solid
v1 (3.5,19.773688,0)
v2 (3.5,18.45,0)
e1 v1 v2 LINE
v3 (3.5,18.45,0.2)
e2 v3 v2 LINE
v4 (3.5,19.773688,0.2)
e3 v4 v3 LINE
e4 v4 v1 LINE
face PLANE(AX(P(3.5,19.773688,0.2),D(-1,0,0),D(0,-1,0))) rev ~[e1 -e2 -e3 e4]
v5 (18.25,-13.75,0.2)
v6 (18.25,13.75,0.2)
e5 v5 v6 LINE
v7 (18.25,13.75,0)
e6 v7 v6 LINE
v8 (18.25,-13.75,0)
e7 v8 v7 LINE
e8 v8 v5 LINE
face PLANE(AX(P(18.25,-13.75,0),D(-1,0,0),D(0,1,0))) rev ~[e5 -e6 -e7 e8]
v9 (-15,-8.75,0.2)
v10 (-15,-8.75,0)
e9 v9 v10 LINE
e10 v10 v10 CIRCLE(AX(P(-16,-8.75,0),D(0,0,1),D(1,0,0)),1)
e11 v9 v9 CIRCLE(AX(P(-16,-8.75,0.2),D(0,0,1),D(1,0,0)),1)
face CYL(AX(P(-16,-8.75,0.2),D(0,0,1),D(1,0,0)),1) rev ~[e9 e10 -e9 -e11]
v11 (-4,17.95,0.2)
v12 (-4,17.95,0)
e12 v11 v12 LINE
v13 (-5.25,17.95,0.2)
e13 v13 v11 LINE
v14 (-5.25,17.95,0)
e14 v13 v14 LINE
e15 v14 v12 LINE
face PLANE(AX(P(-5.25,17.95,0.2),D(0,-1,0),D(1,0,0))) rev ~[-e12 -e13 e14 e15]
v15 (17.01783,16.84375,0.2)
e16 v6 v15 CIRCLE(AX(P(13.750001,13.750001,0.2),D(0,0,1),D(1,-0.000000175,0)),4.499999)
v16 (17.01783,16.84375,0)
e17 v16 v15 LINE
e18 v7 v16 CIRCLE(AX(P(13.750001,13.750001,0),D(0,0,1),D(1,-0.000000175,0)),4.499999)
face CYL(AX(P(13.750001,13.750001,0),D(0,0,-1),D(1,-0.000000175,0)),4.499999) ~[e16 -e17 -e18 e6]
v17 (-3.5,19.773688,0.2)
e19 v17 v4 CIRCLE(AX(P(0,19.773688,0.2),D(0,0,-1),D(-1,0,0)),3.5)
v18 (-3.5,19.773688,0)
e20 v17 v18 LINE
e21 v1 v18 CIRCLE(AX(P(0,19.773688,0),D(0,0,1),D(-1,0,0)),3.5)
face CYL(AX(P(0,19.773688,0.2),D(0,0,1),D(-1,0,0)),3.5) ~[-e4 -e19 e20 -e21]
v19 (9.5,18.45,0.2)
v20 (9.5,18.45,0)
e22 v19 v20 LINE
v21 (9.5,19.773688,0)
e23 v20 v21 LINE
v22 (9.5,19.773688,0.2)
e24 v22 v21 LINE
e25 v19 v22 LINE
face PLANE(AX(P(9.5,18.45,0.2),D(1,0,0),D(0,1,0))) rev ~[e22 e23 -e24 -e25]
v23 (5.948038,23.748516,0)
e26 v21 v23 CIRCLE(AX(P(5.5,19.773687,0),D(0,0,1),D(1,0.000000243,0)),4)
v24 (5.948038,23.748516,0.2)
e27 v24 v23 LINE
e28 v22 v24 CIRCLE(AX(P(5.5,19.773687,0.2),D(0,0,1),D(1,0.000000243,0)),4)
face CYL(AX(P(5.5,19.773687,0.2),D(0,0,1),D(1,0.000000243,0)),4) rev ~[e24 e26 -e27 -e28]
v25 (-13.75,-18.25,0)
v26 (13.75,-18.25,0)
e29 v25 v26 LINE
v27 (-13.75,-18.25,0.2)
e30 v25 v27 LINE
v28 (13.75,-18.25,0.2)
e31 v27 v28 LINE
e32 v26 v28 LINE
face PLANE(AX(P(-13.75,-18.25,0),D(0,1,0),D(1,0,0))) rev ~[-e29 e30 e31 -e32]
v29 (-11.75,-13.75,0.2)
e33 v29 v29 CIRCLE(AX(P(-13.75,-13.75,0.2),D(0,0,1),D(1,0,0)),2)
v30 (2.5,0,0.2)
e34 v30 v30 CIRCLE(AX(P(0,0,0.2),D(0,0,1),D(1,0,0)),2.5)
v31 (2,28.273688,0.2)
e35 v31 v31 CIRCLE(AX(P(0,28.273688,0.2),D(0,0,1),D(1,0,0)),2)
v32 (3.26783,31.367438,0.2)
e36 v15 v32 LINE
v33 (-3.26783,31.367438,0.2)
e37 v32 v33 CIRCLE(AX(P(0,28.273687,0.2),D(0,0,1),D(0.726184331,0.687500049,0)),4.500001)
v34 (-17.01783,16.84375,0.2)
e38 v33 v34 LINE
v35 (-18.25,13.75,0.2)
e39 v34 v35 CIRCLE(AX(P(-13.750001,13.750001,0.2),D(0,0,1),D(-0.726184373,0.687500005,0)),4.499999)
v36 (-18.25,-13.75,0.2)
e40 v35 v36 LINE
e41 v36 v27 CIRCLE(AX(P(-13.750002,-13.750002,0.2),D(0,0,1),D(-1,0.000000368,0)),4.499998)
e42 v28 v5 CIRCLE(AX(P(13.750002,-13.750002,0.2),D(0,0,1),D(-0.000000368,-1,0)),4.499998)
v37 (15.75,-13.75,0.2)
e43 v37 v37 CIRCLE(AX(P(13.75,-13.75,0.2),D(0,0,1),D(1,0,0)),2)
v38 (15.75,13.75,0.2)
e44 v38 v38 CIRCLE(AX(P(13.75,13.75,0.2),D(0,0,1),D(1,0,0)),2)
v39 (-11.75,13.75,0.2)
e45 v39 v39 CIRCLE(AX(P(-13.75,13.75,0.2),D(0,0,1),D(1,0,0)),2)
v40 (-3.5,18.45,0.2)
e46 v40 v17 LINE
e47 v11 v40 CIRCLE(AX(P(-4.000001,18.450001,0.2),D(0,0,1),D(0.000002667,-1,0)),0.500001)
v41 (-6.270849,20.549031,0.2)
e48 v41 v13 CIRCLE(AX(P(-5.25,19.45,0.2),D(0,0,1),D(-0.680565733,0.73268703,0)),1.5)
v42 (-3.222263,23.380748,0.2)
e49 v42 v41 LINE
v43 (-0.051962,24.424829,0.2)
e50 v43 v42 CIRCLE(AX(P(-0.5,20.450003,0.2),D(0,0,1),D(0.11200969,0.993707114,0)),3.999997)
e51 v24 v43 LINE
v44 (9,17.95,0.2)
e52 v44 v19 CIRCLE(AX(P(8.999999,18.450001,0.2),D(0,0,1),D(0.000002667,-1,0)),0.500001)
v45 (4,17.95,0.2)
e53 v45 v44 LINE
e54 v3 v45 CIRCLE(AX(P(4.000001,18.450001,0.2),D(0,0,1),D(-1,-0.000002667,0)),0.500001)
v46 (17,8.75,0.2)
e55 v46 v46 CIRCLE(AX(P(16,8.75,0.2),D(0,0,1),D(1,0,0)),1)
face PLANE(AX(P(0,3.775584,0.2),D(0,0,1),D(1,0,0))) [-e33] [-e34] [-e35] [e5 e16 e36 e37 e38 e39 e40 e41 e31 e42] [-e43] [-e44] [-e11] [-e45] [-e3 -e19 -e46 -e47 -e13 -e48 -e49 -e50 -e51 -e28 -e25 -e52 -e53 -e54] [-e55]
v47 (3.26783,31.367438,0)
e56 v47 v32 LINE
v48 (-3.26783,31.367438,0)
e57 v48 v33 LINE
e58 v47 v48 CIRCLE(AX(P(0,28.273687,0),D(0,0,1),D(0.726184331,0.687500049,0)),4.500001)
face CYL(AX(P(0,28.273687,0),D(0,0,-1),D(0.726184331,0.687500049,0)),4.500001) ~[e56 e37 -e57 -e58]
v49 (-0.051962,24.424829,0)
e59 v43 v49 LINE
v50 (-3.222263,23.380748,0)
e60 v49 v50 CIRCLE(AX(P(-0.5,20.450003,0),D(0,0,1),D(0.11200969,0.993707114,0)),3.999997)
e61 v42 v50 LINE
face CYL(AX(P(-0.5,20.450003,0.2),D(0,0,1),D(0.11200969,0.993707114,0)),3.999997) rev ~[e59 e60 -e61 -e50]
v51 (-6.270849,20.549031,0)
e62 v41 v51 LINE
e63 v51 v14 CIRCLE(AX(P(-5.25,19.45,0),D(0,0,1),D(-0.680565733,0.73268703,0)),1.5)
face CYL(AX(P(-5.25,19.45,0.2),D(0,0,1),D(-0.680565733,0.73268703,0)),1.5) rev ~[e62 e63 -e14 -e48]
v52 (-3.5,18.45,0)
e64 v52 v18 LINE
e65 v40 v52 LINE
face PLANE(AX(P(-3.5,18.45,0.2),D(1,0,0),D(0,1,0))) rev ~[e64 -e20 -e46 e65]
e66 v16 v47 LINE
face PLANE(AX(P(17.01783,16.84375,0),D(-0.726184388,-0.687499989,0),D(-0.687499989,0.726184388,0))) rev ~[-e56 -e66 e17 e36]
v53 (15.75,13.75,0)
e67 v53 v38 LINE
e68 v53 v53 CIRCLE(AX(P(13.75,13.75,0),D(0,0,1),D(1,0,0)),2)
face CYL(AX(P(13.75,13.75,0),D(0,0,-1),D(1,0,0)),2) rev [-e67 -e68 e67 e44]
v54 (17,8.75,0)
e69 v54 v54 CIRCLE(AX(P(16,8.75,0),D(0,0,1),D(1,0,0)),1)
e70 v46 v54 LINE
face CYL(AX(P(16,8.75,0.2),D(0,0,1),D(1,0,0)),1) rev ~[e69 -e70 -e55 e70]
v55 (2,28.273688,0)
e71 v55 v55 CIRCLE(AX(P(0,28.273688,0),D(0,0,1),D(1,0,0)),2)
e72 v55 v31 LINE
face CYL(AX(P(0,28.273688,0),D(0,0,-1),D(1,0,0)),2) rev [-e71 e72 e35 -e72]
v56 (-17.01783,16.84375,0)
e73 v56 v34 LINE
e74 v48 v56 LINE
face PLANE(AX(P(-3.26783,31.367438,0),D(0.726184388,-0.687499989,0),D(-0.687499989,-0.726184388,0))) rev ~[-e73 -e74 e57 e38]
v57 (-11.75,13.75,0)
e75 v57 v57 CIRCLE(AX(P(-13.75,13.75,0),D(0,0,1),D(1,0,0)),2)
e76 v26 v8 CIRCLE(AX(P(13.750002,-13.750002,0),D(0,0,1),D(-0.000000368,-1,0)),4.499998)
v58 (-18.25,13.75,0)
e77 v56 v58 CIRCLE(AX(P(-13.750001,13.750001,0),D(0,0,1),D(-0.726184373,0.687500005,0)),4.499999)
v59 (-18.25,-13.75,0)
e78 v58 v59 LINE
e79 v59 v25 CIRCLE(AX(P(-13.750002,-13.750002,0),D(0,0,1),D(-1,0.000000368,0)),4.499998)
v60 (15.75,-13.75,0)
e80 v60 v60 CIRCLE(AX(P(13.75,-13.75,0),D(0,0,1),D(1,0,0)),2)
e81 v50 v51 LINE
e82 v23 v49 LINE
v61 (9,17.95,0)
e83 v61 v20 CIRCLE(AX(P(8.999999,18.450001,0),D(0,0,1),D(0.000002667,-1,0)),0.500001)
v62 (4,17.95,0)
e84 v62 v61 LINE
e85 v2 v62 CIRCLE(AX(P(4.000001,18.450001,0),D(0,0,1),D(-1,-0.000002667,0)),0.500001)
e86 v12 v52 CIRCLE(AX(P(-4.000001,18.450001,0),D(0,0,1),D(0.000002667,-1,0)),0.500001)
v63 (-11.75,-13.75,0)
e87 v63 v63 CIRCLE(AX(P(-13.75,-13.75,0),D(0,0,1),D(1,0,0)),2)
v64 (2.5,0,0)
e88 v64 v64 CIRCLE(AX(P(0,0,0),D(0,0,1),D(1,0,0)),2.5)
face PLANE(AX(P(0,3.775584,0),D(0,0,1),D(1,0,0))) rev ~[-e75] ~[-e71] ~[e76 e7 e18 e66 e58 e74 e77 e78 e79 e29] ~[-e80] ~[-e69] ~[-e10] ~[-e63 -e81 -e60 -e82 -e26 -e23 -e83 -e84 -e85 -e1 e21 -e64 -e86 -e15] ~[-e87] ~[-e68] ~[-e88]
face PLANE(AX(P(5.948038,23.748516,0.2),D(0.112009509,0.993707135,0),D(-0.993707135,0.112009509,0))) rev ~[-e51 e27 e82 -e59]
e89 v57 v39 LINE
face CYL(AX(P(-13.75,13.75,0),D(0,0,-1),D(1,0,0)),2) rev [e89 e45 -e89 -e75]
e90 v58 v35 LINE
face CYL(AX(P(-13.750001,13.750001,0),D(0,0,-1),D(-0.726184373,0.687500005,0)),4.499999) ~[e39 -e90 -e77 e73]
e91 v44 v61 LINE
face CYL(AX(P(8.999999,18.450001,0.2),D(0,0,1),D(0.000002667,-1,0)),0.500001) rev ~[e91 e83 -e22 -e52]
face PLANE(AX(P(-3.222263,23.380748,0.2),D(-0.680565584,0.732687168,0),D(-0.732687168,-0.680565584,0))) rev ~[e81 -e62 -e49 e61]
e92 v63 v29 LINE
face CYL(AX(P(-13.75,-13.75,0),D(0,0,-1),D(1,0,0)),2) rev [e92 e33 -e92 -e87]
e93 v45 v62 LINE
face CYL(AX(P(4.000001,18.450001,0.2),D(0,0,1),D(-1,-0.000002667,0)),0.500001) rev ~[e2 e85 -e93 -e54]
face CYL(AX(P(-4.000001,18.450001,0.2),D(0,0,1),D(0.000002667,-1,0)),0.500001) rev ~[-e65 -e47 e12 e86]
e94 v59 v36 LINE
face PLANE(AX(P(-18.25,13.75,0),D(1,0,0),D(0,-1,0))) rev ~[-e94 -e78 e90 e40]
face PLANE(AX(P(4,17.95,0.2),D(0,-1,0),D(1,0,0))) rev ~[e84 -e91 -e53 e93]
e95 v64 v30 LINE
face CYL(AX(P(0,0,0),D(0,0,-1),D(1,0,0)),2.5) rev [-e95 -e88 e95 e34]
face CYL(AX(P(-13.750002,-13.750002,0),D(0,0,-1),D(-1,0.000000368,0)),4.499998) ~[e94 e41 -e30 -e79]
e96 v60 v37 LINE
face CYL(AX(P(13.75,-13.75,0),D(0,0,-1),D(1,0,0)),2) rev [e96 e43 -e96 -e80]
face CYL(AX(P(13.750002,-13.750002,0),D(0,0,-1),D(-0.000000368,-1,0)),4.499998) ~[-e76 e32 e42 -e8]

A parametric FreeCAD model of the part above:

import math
import FreeCAD as App
import Part
import Sketcher

doc = App.newDocument("Part")
params = doc.addObject("Spreadsheet::Sheet", "Params")
for row, (alias, value) in enumerate([
    ("sketch1_diameter", "4 mm"),
    ("sketch1_diameter2", "5 mm"),
    ("sketch1_radius", "4.500001 mm"),
    ("sketch1_length", "20 mm"),
    ("sketch1_width", "27.5 mm"),
    ("pad1_length", "0.2 mm"),
    ("sketch2_diameter", "2 mm"),
    ("sketch2_radius", "4 mm"),
    ("sketch2_radius2", "3.5 mm"),
    ("sketch2_radius3", "0.500001 mm"),
    ("sketch2_radius4", "1.5 mm"),
], start=1):
    params.set(f"A{row}", alias)
    params.set(f"B{row}", "=" + value)
    params.setAlias(f"B{row}", alias)

body = doc.addObject("PartDesign::Body", "Body")

sketch1 = body.newObject("Sketcher::SketchObject", "Sketch")
sketch1.AttachmentSupport = (doc.getObject("XY_Plane"), [""])
sketch1.MapMode = "FlatFace"
sketch1.addGeometry([
    Part.ArcOfCircle(Part.Circle(App.Vector(0, 28.3, 0), App.Vector(0, 0, 1), 4.5), math.radians(43), math.radians(137)),
    Part.LineSegment(App.Vector(-3.3, 31.4, 0), App.Vector(-17, 16.8, 0)),
    Part.ArcOfCircle(Part.Circle(App.Vector(-13.8, 13.8, 0), App.Vector(0, 0, 1), 4.5), math.radians(137), math.radians(180)),
    Part.LineSegment(App.Vector(-18.2, 13.8, 0), App.Vector(-18.2, -13.8, 0)),
    Part.ArcOfCircle(Part.Circle(App.Vector(-13.8, -13.8, 0), App.Vector(0, 0, 1), 4.5), math.radians(180), math.radians(270)),
    Part.LineSegment(App.Vector(-13.8, -18.2, 0), App.Vector(13.8, -18.2, 0)),
    Part.ArcOfCircle(Part.Circle(App.Vector(13.8, -13.8, 0), App.Vector(0, 0, 1), 4.5), math.radians(-90), math.radians(0)),
    Part.LineSegment(App.Vector(18.2, -13.8, 0), App.Vector(18.2, 13.8, 0)),
    Part.ArcOfCircle(Part.Circle(App.Vector(13.8, 13.8, 0), App.Vector(0, 0, 1), 4.5), math.radians(0), math.radians(43)),
    Part.LineSegment(App.Vector(17, 16.8, 0), App.Vector(3.3, 31.4, 0)),
    Part.Circle(App.Vector(-13.8, -13.8, 0), App.Vector(0, 0, 1), 2),
    Part.Circle(App.Vector(13.8, -13.8, 0), App.Vector(0, 0, 1), 2),
    Part.Circle(App.Vector(0, 0, 0), App.Vector(0, 0, 1), 2.5),
    Part.Circle(App.Vector(-13.8, 13.8, 0), App.Vector(0, 0, 1), 2),
    Part.Circle(App.Vector(13.8, 13.8, 0), App.Vector(0, 0, 1), 2),
    Part.Circle(App.Vector(0, 28.3, 0), App.Vector(0, 0, 1), 2),
], False)
sketch1.addConstraint([
    Sketcher.Constraint("Tangent", 0, 2, 1, 1),
    Sketcher.Constraint("Tangent", 1, 2, 2, 1),
    Sketcher.Constraint("Tangent", 2, 2, 3, 1),
    Sketcher.Constraint("Tangent", 3, 2, 4, 1),
    Sketcher.Constraint("Tangent", 4, 2, 5, 1),
    Sketcher.Constraint("Tangent", 5, 2, 6, 1),
    Sketcher.Constraint("Tangent", 6, 2, 7, 1),
    Sketcher.Constraint("Tangent", 7, 2, 8, 1),
    Sketcher.Constraint("Tangent", 8, 2, 9, 1),
    Sketcher.Constraint("Tangent", 9, 2, 0, 1),
    Sketcher.Constraint("Vertical", 3),
    Sketcher.Constraint("Horizontal", 5),
    Sketcher.Constraint("Vertical", 7),
    Sketcher.Constraint("Coincident", 12, 3, -1, 1),
    Sketcher.Constraint("Coincident", 10, 3, 4, 3),
    Sketcher.Constraint("Coincident", 11, 3, 6, 3),
    Sketcher.Constraint("Coincident", 13, 3, 2, 3),
    Sketcher.Constraint("Coincident", 14, 3, 8, 3),
    Sketcher.Constraint("Coincident", 15, 3, 0, 3),
    Sketcher.Constraint("Equal", 0, 2),
    Sketcher.Constraint("Equal", 2, 4),
    Sketcher.Constraint("Equal", 4, 6),
    Sketcher.Constraint("Equal", 6, 8),
    Sketcher.Constraint("Equal", 10, 11),
    Sketcher.Constraint("Equal", 11, 13),
    Sketcher.Constraint("Equal", 13, 14),
    Sketcher.Constraint("Equal", 14, 15),
    Sketcher.Constraint("Symmetric", 2, 3, 6, 3, -1, 1),
    Sketcher.Constraint("Symmetric", 1, 2, 8, 2, -2),
    Sketcher.Constraint("Equal", 5, 3),
    Sketcher.Constraint("Diameter", 10, 4.0),
    Sketcher.Constraint("Diameter", 12, 5.0),
    Sketcher.Constraint("Radius", 0, 4.500001),
    Sketcher.Constraint("Distance", 1, 20.0),
    Sketcher.Constraint("DistanceX", 5, 1, 5, 2, 27.5),
])
sketch1.setExpression("Constraints[30]", "Params.sketch1_diameter")
sketch1.setExpression("Constraints[31]", "Params.sketch1_diameter2")
sketch1.setExpression("Constraints[32]", "Params.sketch1_radius")
sketch1.setExpression("Constraints[33]", "Params.sketch1_length")
sketch1.setExpression("Constraints[34]", "Params.sketch1_width")
pad1 = body.newObject("PartDesign::Pad", "Pad")
pad1.Profile = sketch1
pad1.setExpression("Length", "Params.pad1_length")

sketch2 = body.newObject("Sketcher::SketchObject", "Sketch001")
sketch2.AttachmentSupport = (doc.getObject("XY_Plane"), [""])
sketch2.MapMode = "FlatFace"
sketch2.AttachmentOffset = App.Placement(App.Vector(0, 0, 0.2), App.Rotation())
sketch2.addGeometry([
    Part.ArcOfCircle(Part.Circle(App.Vector(0, 19.8, 0), App.Vector(0, 0, 1), 3.5), math.radians(0), math.radians(180)),
    Part.LineSegment(App.Vector(3.5, 19.8, 0), App.Vector(3.5, 18.4, 0)),
    Part.ArcOfCircle(Part.Circle(App.Vector(4, 18.5, 0), App.Vector(0, 0, 1), 0.5), math.radians(-180), math.radians(-90)),
    Part.LineSegment(App.Vector(4, 17.9, 0), App.Vector(9, 17.9, 0)),
    Part.ArcOfCircle(Part.Circle(App.Vector(9, 18.5, 0), App.Vector(0, 0, 1), 0.5), math.radians(-90), math.radians(0)),
    Part.LineSegment(App.Vector(9.5, 18.4, 0), App.Vector(9.5, 19.8, 0)),
    Part.ArcOfCircle(Part.Circle(App.Vector(5.5, 19.8, 0), App.Vector(0, 0, 1), 4), math.radians(0), math.radians(84)),
    Part.LineSegment(App.Vector(5.9, 23.7, 0), App.Vector(-0.1, 24.4, 0)),
    Part.ArcOfCircle(Part.Circle(App.Vector(-0.5, 20.5, 0), App.Vector(0, 0, 1), 4), math.radians(84), math.radians(133)),
    Part.LineSegment(App.Vector(-3.2, 23.4, 0), App.Vector(-6.3, 20.5, 0)),
    Part.ArcOfCircle(Part.Circle(App.Vector(-5.3, 19.5, 0), App.Vector(0, 0, 1), 1.5), math.radians(133), math.radians(270)),
    Part.LineSegment(App.Vector(-5.2, 17.9, 0), App.Vector(-4, 17.9, 0)),
    Part.ArcOfCircle(Part.Circle(App.Vector(-4, 18.5, 0), App.Vector(0, 0, 1), 0.5), math.radians(-90), math.radians(0)),
    Part.LineSegment(App.Vector(-3.5, 18.4, 0), App.Vector(-3.5, 19.8, 0)),
    Part.Circle(App.Vector(-16, -8.8, 0), App.Vector(0, 0, 1), 1),
    Part.Circle(App.Vector(16, 8.8, 0), App.Vector(0, 0, 1), 1),
], False)
sketch2.addConstraint([
    Sketcher.Constraint("Tangent", 0, 1, 1, 1),
    Sketcher.Constraint("Coincident", 1, 2, 2, 1),
    Sketcher.Constraint("Coincident", 2, 2, 3, 1),
    Sketcher.Constraint("Coincident", 3, 2, 4, 1),
    Sketcher.Constraint("Coincident", 4, 2, 5, 1),
    Sketcher.Constraint("Tangent", 5, 2, 6, 1),
    Sketcher.Constraint("Tangent", 6, 2, 7, 1),
    Sketcher.Constraint("Tangent", 7, 2, 8, 1),
    Sketcher.Constraint("Tangent", 8, 2, 9, 1),
    Sketcher.Constraint("Tangent", 9, 2, 10, 1),
    Sketcher.Constraint("Tangent", 10, 2, 11, 1),
    Sketcher.Constraint("Coincident", 11, 2, 12, 1),
    Sketcher.Constraint("Coincident", 12, 2, 13, 1),
    Sketcher.Constraint("Tangent", 13, 2, 0, 2),
    Sketcher.Constraint("Vertical", 1),
    Sketcher.Constraint("Horizontal", 3),
    Sketcher.Constraint("Vertical", 5),
    Sketcher.Constraint("Horizontal", 11),
    Sketcher.Constraint("Vertical", 13),
    Sketcher.Constraint("Equal", 2, 4),
    Sketcher.Constraint("Equal", 4, 12),
    Sketcher.Constraint("Equal", 14, 15),
    Sketcher.Constraint("Symmetric", 14, 3, 15, 3, -1, 1),
    Sketcher.Constraint("Symmetric", 2, 3, 12, 3, -2),
    Sketcher.Constraint("Horizontal", 0, 3, 6, 3),
    Sketcher.Constraint("Horizontal", 12, 3, 1, 2),
    Sketcher.Constraint("Horizontal", 1, 2, 4, 2),
    Sketcher.Constraint("Horizontal", 4, 2, 12, 2),
    Sketcher.Constraint("Vertical", 4, 3, 3, 2),
    Sketcher.Constraint("Vertical", 12, 3, 11, 2),
    Sketcher.Constraint("Diameter", 14, 2.0),
    Sketcher.Constraint("Radius", 6, 4.0),
    Sketcher.Constraint("Radius", 0, 3.5),
    Sketcher.Constraint("Radius", 2, 0.500001),
    Sketcher.Constraint("Radius", 10, 1.5),
    Sketcher.Constraint("DistanceX", 3, 1, 3, 2, 5.0),
    Sketcher.Constraint("DistanceX", -1, 1, 4, 3, 8.999999),
    Sketcher.Constraint("DistanceX", 14, 3, -1, 1, 16.0),
    Sketcher.Constraint("DistanceY", 2, 3, 8, 3, 2.000002),
    Sketcher.Constraint("DistanceX", 8, 3, 6, 3, 6.0),
    Sketcher.Constraint("DistanceX", 7, 2, 6, 2, 6.0),
    Sketcher.Constraint("DistanceX", 11, 1, 11, 2, 1.25),
    Sketcher.Constraint("DistanceY", 14, 3, 12, 3, 27.200001),
    Sketcher.Constraint("DistanceY", 15, 3, 4, 3, 9.700001),
    Sketcher.Constraint("DistanceY", 1, 2, 1, 1, 1.323688),
])
sketch2.setExpression("Constraints[30]", "Params.sketch2_diameter")
sketch2.setExpression("Constraints[31]", "Params.sketch2_radius")
sketch2.setExpression("Constraints[32]", "Params.sketch2_radius2")
sketch2.setExpression("Constraints[33]", "Params.sketch2_radius3")
sketch2.setExpression("Constraints[34]", "Params.sketch2_radius4")
pocket1 = body.newObject("PartDesign::Pocket", "Pocket")
pocket1.Profile = sketch2
pocket1.Type = "ThroughAll"

doc.recompute()
